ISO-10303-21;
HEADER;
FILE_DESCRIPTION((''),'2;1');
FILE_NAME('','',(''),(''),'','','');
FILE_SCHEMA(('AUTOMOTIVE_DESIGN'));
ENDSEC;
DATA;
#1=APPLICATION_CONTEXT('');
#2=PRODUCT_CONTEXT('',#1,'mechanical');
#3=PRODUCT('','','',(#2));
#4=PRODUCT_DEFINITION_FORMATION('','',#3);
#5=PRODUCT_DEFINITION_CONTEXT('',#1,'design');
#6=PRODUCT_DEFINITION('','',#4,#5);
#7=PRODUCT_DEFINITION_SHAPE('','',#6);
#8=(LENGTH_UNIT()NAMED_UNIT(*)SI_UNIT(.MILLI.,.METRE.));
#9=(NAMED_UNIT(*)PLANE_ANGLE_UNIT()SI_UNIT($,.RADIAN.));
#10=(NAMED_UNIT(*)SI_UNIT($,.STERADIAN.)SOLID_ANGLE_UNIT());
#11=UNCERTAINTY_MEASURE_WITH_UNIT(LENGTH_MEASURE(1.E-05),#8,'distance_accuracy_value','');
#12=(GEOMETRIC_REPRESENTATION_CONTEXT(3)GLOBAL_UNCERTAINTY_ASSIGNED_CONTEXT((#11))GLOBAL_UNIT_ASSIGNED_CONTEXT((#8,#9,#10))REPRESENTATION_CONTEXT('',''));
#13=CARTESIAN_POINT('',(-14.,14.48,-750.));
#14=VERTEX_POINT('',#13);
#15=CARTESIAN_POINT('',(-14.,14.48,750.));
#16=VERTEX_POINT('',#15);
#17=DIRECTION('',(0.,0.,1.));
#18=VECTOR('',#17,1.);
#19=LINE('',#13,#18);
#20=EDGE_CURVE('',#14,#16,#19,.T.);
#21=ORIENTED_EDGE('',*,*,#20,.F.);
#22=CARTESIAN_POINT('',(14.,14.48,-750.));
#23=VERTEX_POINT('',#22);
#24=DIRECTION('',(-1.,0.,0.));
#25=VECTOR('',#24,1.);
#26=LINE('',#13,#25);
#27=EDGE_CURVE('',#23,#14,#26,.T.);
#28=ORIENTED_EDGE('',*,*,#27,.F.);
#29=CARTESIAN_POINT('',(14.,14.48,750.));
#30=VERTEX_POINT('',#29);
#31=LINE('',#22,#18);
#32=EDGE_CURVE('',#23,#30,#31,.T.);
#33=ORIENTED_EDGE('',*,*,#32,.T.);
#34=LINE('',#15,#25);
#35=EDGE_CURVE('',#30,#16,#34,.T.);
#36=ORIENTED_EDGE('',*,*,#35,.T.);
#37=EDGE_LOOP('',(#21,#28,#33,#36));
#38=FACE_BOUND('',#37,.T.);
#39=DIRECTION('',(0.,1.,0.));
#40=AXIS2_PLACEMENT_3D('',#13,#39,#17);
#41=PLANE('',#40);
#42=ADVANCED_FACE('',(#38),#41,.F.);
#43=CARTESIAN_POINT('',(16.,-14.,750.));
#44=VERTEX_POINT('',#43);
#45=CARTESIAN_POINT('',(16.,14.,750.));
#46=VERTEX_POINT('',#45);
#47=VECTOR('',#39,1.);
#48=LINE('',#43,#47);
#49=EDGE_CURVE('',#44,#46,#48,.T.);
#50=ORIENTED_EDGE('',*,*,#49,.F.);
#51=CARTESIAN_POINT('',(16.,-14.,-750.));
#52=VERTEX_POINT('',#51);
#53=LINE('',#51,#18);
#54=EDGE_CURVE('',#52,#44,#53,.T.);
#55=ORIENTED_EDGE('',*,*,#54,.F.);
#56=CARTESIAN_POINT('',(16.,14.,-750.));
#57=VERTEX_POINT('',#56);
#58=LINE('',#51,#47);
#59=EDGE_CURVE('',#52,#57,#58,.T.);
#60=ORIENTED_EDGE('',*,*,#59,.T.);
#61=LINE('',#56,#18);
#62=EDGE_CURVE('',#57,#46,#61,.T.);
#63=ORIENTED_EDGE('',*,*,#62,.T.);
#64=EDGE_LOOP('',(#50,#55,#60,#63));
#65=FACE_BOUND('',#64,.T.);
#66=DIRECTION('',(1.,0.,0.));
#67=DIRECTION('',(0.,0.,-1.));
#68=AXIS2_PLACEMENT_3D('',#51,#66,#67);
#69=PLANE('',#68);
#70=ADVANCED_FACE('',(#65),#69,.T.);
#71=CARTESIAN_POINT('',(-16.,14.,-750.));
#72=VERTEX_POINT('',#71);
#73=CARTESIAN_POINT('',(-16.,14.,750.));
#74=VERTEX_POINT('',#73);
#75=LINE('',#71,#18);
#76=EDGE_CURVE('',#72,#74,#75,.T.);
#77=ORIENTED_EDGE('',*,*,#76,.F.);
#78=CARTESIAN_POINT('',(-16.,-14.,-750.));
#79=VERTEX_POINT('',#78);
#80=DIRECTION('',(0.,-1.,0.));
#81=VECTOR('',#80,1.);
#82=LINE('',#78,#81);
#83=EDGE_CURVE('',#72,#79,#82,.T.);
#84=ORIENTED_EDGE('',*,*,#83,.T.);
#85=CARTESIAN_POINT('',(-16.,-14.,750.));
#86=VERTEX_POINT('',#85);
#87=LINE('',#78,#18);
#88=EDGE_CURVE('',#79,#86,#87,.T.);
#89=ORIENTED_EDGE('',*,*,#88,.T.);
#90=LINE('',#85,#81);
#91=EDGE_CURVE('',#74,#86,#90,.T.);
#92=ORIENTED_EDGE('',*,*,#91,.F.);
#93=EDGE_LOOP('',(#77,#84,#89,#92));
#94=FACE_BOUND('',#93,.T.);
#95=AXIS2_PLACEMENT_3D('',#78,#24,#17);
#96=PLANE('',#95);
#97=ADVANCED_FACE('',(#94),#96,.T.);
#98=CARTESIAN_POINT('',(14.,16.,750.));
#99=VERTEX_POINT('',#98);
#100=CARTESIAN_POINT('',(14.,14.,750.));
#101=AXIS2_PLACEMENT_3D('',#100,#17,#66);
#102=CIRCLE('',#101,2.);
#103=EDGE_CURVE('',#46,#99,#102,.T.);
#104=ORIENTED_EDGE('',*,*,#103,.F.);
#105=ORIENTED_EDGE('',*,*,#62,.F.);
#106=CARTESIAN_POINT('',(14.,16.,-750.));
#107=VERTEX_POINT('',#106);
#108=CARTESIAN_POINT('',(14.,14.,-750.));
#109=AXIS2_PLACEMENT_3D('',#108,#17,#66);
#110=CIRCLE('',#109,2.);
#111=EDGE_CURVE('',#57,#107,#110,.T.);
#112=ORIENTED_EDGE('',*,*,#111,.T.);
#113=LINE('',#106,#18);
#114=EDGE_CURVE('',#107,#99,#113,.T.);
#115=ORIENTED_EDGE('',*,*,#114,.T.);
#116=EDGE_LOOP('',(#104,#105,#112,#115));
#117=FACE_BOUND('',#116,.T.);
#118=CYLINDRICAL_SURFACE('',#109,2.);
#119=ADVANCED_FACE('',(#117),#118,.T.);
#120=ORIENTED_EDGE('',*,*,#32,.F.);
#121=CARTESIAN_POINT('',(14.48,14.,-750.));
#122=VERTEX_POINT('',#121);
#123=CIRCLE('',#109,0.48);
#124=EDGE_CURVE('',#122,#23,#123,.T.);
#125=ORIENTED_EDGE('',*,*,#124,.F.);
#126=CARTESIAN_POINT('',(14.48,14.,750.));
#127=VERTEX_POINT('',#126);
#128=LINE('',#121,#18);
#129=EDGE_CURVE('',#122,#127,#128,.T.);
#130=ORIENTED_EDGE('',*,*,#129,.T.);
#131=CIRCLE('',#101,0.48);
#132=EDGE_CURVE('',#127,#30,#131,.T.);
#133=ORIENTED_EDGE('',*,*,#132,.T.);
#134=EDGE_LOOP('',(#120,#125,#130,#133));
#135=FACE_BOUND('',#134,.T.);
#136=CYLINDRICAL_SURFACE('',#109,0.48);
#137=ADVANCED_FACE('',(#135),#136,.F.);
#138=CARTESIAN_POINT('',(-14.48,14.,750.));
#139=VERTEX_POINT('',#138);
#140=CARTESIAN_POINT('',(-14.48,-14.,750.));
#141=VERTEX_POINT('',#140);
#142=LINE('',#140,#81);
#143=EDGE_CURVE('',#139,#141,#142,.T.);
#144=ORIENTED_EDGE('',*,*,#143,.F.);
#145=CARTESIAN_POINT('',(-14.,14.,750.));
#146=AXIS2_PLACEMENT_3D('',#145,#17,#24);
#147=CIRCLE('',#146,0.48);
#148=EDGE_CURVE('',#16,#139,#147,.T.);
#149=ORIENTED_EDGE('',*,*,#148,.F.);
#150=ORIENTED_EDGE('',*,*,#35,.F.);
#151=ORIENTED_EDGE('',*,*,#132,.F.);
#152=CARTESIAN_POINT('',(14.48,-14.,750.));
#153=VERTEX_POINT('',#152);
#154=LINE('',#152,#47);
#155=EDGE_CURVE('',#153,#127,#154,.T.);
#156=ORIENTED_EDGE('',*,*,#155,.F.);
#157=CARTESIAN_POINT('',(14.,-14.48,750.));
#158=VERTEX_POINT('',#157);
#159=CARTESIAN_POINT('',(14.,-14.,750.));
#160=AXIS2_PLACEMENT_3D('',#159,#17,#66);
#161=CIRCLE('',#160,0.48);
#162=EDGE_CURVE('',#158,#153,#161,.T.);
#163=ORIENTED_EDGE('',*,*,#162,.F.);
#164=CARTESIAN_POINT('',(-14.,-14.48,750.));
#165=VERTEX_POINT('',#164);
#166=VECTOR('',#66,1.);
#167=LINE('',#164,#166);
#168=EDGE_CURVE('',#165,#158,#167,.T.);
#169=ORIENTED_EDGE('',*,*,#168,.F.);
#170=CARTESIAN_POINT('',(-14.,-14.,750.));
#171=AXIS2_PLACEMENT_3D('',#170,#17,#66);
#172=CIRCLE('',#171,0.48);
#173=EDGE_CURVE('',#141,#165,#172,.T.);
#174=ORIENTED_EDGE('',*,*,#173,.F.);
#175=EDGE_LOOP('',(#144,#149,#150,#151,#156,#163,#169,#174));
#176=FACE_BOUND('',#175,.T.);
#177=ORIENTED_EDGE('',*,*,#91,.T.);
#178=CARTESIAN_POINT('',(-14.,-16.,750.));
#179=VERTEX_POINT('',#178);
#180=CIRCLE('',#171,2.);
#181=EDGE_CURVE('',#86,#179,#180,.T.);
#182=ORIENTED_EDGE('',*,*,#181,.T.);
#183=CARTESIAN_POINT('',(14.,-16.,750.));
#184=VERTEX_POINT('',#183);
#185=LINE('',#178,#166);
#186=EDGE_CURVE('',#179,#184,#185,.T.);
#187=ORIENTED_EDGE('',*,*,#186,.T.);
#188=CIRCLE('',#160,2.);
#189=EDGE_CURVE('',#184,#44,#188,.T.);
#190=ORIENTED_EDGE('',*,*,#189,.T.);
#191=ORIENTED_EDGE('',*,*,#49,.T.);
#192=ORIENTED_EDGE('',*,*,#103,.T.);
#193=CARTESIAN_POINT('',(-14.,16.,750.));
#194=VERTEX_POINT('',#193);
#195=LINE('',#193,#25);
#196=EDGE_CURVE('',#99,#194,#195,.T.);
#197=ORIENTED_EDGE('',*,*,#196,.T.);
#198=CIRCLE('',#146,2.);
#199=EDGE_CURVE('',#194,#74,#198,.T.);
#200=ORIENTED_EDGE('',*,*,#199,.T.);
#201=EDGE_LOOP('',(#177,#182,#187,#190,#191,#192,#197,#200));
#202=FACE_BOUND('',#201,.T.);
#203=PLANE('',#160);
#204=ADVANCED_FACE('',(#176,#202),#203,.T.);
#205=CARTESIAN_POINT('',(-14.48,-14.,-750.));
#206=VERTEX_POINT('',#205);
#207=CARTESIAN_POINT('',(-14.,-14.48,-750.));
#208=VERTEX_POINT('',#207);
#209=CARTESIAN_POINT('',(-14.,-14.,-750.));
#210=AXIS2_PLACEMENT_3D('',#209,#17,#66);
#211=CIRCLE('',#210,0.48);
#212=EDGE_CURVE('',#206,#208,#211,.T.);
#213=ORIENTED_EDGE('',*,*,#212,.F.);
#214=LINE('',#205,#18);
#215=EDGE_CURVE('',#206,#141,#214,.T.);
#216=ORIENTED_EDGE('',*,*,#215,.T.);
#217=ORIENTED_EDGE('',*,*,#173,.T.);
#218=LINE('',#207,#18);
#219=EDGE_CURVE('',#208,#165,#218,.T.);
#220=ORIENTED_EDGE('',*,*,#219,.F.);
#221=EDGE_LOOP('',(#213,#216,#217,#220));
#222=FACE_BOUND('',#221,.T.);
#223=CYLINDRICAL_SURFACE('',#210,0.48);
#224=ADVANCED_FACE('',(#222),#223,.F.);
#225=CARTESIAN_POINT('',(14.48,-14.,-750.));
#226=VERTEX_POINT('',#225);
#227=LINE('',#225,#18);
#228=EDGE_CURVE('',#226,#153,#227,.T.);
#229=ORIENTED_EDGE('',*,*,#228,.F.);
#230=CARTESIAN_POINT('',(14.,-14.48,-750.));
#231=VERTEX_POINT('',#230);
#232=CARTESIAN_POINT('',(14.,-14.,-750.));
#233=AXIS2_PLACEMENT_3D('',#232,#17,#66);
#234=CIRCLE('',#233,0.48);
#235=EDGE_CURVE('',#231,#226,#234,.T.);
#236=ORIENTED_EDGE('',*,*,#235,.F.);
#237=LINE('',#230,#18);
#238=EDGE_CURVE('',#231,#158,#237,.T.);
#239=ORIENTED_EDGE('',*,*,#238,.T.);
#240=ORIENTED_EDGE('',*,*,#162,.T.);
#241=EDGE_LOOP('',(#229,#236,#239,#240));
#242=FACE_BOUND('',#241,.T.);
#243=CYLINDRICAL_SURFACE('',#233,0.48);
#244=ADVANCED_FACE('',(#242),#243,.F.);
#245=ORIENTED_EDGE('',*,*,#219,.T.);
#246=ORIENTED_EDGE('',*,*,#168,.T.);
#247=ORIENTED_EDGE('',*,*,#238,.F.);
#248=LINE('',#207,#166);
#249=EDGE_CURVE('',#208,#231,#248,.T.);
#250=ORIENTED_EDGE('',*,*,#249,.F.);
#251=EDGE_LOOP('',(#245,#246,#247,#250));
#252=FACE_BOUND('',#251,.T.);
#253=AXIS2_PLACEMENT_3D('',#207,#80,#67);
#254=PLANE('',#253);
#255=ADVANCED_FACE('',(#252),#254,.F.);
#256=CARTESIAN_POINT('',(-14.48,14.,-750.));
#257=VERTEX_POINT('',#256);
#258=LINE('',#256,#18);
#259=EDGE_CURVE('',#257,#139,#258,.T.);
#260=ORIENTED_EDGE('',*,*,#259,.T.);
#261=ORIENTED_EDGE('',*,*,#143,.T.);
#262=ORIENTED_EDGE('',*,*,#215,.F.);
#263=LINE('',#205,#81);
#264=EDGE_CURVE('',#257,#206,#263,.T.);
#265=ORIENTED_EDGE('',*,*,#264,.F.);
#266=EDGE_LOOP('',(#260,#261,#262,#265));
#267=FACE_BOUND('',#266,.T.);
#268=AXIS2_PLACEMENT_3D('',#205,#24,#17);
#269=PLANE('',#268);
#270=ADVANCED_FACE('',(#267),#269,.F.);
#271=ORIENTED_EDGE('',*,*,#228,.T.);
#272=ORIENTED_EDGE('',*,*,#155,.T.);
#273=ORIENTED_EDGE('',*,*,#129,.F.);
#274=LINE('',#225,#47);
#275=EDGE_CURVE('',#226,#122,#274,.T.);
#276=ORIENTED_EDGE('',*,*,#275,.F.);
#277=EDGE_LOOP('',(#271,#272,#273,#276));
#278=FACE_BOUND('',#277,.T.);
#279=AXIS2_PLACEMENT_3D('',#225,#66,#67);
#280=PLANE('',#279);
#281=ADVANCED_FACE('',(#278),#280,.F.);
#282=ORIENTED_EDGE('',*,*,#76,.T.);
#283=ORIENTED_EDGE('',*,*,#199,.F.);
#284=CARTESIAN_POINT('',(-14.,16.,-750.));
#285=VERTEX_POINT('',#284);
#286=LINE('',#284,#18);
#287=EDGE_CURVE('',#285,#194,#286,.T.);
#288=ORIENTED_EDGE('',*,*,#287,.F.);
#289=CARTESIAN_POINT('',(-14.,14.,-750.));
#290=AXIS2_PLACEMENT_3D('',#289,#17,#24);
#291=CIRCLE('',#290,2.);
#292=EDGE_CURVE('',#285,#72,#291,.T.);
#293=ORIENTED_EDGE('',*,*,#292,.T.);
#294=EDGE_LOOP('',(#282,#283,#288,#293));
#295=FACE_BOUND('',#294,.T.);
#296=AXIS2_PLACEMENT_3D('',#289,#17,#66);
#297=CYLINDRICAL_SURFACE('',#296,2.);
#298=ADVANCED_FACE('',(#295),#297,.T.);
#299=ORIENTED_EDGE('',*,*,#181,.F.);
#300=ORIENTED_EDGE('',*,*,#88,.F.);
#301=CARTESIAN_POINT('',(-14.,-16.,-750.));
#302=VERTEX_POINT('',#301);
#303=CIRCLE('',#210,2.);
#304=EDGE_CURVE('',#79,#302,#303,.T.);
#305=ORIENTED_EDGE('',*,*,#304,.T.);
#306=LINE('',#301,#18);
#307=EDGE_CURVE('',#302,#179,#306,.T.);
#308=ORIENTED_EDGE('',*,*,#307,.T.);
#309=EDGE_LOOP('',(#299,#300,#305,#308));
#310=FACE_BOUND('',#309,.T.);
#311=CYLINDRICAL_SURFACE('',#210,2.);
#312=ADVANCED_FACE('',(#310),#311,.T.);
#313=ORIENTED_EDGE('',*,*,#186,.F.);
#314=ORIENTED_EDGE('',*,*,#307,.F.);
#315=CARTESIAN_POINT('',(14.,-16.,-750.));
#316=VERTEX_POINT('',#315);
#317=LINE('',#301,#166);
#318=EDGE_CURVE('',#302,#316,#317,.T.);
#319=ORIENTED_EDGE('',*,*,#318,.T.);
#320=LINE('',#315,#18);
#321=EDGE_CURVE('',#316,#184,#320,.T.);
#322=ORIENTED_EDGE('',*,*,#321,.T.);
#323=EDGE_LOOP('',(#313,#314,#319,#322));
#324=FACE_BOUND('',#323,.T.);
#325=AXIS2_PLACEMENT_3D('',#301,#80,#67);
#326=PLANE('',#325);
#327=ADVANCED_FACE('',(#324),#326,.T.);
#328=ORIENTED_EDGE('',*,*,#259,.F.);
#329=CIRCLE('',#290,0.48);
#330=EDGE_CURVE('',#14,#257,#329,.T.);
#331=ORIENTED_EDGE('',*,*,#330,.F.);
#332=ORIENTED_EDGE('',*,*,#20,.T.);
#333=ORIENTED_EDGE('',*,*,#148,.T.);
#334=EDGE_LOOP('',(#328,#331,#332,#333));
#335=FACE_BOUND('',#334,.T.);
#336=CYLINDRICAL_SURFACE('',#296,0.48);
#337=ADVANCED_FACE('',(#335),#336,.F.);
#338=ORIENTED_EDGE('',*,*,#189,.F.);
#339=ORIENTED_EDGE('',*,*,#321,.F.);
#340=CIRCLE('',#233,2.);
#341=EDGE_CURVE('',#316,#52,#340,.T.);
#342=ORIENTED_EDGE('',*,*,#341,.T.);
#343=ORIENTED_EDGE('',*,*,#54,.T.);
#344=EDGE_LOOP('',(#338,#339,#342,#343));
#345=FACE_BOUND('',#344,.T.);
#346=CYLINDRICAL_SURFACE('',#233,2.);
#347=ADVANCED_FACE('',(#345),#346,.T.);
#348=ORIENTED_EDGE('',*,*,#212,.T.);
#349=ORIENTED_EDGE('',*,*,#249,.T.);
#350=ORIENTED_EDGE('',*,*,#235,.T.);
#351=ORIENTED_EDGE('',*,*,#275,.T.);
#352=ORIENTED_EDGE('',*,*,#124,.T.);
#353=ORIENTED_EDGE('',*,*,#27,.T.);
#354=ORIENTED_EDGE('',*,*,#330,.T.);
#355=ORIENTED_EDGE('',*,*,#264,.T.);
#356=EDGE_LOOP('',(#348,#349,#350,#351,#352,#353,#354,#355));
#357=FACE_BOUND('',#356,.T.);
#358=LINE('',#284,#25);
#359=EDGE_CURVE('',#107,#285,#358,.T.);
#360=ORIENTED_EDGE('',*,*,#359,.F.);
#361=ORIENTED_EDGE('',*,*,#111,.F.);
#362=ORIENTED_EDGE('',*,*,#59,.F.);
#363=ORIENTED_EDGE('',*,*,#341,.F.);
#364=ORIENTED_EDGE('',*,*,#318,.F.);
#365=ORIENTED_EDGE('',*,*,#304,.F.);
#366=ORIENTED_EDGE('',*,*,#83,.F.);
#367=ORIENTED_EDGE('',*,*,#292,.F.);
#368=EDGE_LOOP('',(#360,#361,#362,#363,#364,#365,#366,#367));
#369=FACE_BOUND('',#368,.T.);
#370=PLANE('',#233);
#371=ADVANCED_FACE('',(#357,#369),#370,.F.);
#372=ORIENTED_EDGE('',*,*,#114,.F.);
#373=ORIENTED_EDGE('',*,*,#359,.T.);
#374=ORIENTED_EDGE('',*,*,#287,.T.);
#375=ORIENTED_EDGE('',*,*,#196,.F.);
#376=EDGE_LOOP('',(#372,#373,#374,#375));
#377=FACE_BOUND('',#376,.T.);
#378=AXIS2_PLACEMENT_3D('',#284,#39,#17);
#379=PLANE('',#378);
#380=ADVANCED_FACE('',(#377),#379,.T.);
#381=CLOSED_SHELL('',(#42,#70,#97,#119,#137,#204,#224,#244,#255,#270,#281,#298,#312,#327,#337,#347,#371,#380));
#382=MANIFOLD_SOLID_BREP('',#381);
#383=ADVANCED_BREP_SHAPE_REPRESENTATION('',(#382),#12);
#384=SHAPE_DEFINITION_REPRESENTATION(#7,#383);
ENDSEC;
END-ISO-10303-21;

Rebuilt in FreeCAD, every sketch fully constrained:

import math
import FreeCAD as App
import Part
import Sketcher
from FreeCAD import Vector

doc = App.newDocument("Part")
body = doc.addObject("PartDesign::Body", "Body")

# Sketch on XY plane
sketch1 = doc.addObject("Sketcher::SketchObject", "Sketch")
body.addObject(sketch1)
sketch1.AttachmentSupport = (doc.XY_Plane, [""])
sketch1.MapMode = "FlatFace"
sketch1.addGeometry([
    Part.LineSegment(Vector(-14, -16, 0), Vector(14, -16, 0)),  # 0
    Part.ArcOfCircle(Part.Circle(Vector(14, -14, 0), Vector(0, 0, 1), 2), math.radians(-90), math.radians(0)),  # 1
    Part.LineSegment(Vector(16, -14, 0), Vector(16, 14, 0)),  # 2
    Part.ArcOfCircle(Part.Circle(Vector(14, 14, 0), Vector(0, 0, 1), 2), math.radians(0), math.radians(90)),  # 3
    Part.LineSegment(Vector(14, 16, 0), Vector(-14, 16, 0)),  # 4
    Part.ArcOfCircle(Part.Circle(Vector(-14, 14, 0), Vector(0, 0, 1), 2), math.radians(90), math.radians(180)),  # 5
    Part.LineSegment(Vector(-16, 14, 0), Vector(-16, -14, 0)),  # 6
    Part.ArcOfCircle(Part.Circle(Vector(-14, -14, 0), Vector(0, 0, 1), 2), math.radians(-180), math.radians(-90)),  # 7
    Part.ArcOfCircle(Part.Circle(Vector(-14, 14, 0), Vector(0, 0, 1), 0.48), math.radians(90), math.radians(180)),  # 8
    Part.LineSegment(Vector(-14, 14.48, 0), Vector(14, 14.48, 0)),  # 9
    Part.ArcOfCircle(Part.Circle(Vector(14, 14, 0), Vector(0, 0, 1), 0.48), math.radians(0), math.radians(90)),  # 10
    Part.LineSegment(Vector(14.48, 14, 0), Vector(14.48, -14, 0)),  # 11
    Part.ArcOfCircle(Part.Circle(Vector(14, -14, 0), Vector(0, 0, 1), 0.48), math.radians(-90), math.radians(0)),  # 12
    Part.LineSegment(Vector(14, -14.48, 0), Vector(-14, -14.48, 0)),  # 13
    Part.ArcOfCircle(Part.Circle(Vector(-14, -14, 0), Vector(0, 0, 1), 0.48), math.radians(180), math.radians(270)),  # 14
    Part.LineSegment(Vector(-14.48, -14, 0), Vector(-14.48, 14, 0)),  # 15
], False)
sketch1.addConstraint([
    Sketcher.Constraint("Tangent", 0, 2, 1, 1),
    Sketcher.Constraint("Tangent", 1, 2, 2, 1),
    Sketcher.Constraint("Tangent", 2, 2, 3, 1),
    Sketcher.Constraint("Tangent", 3, 2, 4, 1),
    Sketcher.Constraint("Tangent", 4, 2, 5, 1),
    Sketcher.Constraint("Tangent", 5, 2, 6, 1),
    Sketcher.Constraint("Tangent", 6, 2, 7, 1),
    Sketcher.Constraint("Tangent", 7, 2, 0, 1),
    Sketcher.Constraint("Tangent", 8, 1, 9, 1),
    Sketcher.Constraint("Tangent", 9, 2, 10, 2),
    Sketcher.Constraint("Tangent", 10, 1, 11, 1),
    Sketcher.Constraint("Tangent", 11, 2, 12, 2),
    Sketcher.Constraint("Tangent", 12, 1, 13, 1),
    Sketcher.Constraint("Tangent", 13, 2, 14, 2),
    Sketcher.Constraint("Tangent", 14, 1, 15, 1),
    Sketcher.Constraint("Tangent", 15, 2, 8, 2),
    Sketcher.Constraint("Horizontal", 0),
    Sketcher.Constraint("Vertical", 2),
    Sketcher.Constraint("Horizontal", 4),
    Sketcher.Constraint("Vertical", 6),
    Sketcher.Constraint("Horizontal", 9),
    Sketcher.Constraint("Vertical", 11),
    Sketcher.Constraint("Horizontal", 13),
    Sketcher.Constraint("Vertical", 15),
    Sketcher.Constraint("Coincident", 8, 3, 5, 3),
    Sketcher.Constraint("Coincident", 10, 3, 3, 3),
    Sketcher.Constraint("Coincident", 12, 3, 1, 3),
    Sketcher.Constraint("Equal", 1, 3),
    Sketcher.Constraint("Equal", 3, 5),
    Sketcher.Constraint("Equal", 5, 7),
    Sketcher.Constraint("Equal", 12, 14),
    Sketcher.Constraint("Symmetric", 1, 3, 5, 3, -1, 1),
    Sketcher.Constraint("Equal", 13, 2),
    Sketcher.Constraint("Radius", 1, 2.0),
    Sketcher.Constraint("DistanceX", 0, 1, 0, 2, 28.0),
    Sketcher.Constraint("Radius", 8, 0.48),
])
pad1 = doc.addObject("PartDesign::Pad", "Pad")
body.addObject(pad1)
pad1.Profile = sketch1
pad1.Type = "TwoLengths"
pad1.Length = 750
pad1.Length2 = 750

doc.recompute()
